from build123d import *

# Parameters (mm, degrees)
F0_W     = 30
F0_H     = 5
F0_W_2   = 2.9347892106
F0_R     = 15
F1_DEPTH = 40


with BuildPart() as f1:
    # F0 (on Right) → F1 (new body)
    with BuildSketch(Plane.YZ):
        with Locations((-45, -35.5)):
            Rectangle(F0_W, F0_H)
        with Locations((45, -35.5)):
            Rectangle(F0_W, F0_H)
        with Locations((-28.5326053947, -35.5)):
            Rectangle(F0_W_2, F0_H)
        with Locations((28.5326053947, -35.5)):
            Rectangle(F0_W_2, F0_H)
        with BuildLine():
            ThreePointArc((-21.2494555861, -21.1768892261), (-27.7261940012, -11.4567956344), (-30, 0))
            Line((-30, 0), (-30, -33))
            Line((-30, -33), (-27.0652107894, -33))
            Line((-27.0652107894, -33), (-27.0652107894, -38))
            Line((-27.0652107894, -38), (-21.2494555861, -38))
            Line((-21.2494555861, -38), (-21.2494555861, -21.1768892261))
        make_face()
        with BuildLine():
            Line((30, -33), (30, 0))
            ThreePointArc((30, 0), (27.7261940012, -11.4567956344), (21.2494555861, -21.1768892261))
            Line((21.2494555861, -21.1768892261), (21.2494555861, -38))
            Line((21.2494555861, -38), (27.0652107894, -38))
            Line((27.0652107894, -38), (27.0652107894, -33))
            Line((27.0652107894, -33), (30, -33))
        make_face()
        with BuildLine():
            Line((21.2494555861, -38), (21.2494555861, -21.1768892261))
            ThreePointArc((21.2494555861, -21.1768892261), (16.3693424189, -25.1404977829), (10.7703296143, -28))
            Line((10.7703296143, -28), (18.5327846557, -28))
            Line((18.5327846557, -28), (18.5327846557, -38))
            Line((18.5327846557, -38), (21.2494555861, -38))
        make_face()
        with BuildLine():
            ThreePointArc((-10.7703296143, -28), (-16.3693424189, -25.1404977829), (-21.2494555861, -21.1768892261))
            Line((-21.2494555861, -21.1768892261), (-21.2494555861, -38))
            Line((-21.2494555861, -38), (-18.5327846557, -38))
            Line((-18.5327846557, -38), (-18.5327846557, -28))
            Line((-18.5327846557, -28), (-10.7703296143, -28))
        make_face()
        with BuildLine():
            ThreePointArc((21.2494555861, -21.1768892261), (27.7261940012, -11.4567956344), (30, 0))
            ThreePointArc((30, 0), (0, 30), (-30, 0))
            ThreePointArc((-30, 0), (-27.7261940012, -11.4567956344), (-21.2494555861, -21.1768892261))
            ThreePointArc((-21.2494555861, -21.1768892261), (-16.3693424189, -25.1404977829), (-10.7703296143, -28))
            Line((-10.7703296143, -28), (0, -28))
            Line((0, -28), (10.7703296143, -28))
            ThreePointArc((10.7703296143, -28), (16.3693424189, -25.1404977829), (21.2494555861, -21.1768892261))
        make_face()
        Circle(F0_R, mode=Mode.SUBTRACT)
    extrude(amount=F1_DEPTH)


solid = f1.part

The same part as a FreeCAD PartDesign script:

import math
import FreeCAD as App
import Part
import Sketcher
from FreeCAD import Vector

doc = App.newDocument("Part")
body = doc.addObject("PartDesign::Body", "Body")

# Sketch on YZ plane
sketch1 = body.newObject("Sketcher::SketchObject", "Sketch")
sketch1.AttachmentSupport = (doc.getObject("YZ_Plane"), [""])
sketch1.MapMode = "FlatFace"
sketch1.addGeometry([
    Part.LineSegment(Vector(-60, -33, 0), Vector(-60, -38, 0)),  # 0
    Part.LineSegment(Vector(-60, -38, 0), Vector(-18.532785, -38, 0)),  # 1
    Part.LineSegment(Vector(-18.532785, -38, 0), Vector(-18.532785, -28, 0)),  # 2
    Part.LineSegment(Vector(-18.532785, -28, 0), Vector(18.532785, -28, 0)),  # 3
    Part.LineSegment(Vector(18.532785, -28, 0), Vector(18.532785, -38, 0)),  # 4
    Part.LineSegment(Vector(18.532785, -38, 0), Vector(60, -38, 0)),  # 5
    Part.LineSegment(Vector(60, -38, 0), Vector(60, -33, 0)),  # 6
    Part.LineSegment(Vector(60, -33, 0), Vector(30, -33, 0)),  # 7
    Part.LineSegment(Vector(30, -33, 0), Vector(30, 0, 0)),  # 8
    Part.ArcOfCircle(Part.Circle(Vector(0, 0, 0), Vector(0, 0, 1), 30), math.radians(0), math.radians(180)),  # 9
    Part.LineSegment(Vector(-30, 0, 0), Vector(-30, -33, 0)),  # 10
    Part.LineSegment(Vector(-30, -33, 0), Vector(-60, -33, 0)),  # 11
    Part.Circle(Vector(0, 0, 0), Vector(0, 0, 1), 15),  # 12
], False)
sketch1.addConstraint([
    Sketcher.Constraint("Coincident", 0, 2, 1, 1),
    Sketcher.Constraint("Coincident", 1, 2, 2, 1),
    Sketcher.Constraint("Coincident", 2, 2, 3, 1),
    Sketcher.Constraint("Coincident", 3, 2, 4, 1),
    Sketcher.Constraint("Coincident", 4, 2, 5, 1),
    Sketcher.Constraint("Coincident", 5, 2, 6, 1),
    Sketcher.Constraint("Coincident", 6, 2, 7, 1),
    Sketcher.Constraint("Coincident", 7, 2, 8, 1),
    Sketcher.Constraint("Tangent", 8, 2, 9, 1),
    Sketcher.Constraint("Tangent", 9, 2, 10, 1),
    Sketcher.Constraint("Coincident", 10, 2, 11, 1),
    Sketcher.Constraint("Coincident", 11, 2, 0, 1),
    Sketcher.Constraint("Vertical", 0),
    Sketcher.Constraint("Horizontal", 1),
    Sketcher.Constraint("Vertical", 2),
    Sketcher.Constraint("Horizontal", 3),
    Sketcher.Constraint("Vertical", 4),
    Sketcher.Constraint("Horizontal", 5),
    Sketcher.Constraint("Vertical", 6),
    Sketcher.Constraint("Horizontal", 7),
    Sketcher.Constraint("Vertical", 8),
    Sketcher.Constraint("Vertical", 10),
    Sketcher.Constraint("Horizontal", 11),
    Sketcher.Constraint("Coincident", 9, 3, -1, 1),
    Sketcher.Constraint("Coincident", 12, 3, -1, 1),
    Sketcher.Constraint("Symmetric", 1, 2, 4, 2, -2),
    Sketcher.Constraint("Symmetric", 6, 2, 11, 2, -2),
    Sketcher.Constraint("Diameter", 12, 30.0),
    Sketcher.Constraint("Radius", 9, 30.0),
    Sketcher.Constraint("DistanceX", 7, 2, 7, 1, 30.0),
    Sketcher.Constraint("DistanceY", 0, 2, 0, 1, 5.0),
    Sketcher.Constraint("DistanceY", 2, 1, 2, 2, 10.0),
    Sketcher.Constraint("DistanceY", 8, 1, 8, 2, 33.0),
    Sketcher.Constraint("DistanceX", 3, 1, 3, 2, 37.065569),
])
pad1 = body.newObject("PartDesign::Pad", "Pad")
pad1.Profile = sketch1
pad1.Length = 40

doc.recompute()
